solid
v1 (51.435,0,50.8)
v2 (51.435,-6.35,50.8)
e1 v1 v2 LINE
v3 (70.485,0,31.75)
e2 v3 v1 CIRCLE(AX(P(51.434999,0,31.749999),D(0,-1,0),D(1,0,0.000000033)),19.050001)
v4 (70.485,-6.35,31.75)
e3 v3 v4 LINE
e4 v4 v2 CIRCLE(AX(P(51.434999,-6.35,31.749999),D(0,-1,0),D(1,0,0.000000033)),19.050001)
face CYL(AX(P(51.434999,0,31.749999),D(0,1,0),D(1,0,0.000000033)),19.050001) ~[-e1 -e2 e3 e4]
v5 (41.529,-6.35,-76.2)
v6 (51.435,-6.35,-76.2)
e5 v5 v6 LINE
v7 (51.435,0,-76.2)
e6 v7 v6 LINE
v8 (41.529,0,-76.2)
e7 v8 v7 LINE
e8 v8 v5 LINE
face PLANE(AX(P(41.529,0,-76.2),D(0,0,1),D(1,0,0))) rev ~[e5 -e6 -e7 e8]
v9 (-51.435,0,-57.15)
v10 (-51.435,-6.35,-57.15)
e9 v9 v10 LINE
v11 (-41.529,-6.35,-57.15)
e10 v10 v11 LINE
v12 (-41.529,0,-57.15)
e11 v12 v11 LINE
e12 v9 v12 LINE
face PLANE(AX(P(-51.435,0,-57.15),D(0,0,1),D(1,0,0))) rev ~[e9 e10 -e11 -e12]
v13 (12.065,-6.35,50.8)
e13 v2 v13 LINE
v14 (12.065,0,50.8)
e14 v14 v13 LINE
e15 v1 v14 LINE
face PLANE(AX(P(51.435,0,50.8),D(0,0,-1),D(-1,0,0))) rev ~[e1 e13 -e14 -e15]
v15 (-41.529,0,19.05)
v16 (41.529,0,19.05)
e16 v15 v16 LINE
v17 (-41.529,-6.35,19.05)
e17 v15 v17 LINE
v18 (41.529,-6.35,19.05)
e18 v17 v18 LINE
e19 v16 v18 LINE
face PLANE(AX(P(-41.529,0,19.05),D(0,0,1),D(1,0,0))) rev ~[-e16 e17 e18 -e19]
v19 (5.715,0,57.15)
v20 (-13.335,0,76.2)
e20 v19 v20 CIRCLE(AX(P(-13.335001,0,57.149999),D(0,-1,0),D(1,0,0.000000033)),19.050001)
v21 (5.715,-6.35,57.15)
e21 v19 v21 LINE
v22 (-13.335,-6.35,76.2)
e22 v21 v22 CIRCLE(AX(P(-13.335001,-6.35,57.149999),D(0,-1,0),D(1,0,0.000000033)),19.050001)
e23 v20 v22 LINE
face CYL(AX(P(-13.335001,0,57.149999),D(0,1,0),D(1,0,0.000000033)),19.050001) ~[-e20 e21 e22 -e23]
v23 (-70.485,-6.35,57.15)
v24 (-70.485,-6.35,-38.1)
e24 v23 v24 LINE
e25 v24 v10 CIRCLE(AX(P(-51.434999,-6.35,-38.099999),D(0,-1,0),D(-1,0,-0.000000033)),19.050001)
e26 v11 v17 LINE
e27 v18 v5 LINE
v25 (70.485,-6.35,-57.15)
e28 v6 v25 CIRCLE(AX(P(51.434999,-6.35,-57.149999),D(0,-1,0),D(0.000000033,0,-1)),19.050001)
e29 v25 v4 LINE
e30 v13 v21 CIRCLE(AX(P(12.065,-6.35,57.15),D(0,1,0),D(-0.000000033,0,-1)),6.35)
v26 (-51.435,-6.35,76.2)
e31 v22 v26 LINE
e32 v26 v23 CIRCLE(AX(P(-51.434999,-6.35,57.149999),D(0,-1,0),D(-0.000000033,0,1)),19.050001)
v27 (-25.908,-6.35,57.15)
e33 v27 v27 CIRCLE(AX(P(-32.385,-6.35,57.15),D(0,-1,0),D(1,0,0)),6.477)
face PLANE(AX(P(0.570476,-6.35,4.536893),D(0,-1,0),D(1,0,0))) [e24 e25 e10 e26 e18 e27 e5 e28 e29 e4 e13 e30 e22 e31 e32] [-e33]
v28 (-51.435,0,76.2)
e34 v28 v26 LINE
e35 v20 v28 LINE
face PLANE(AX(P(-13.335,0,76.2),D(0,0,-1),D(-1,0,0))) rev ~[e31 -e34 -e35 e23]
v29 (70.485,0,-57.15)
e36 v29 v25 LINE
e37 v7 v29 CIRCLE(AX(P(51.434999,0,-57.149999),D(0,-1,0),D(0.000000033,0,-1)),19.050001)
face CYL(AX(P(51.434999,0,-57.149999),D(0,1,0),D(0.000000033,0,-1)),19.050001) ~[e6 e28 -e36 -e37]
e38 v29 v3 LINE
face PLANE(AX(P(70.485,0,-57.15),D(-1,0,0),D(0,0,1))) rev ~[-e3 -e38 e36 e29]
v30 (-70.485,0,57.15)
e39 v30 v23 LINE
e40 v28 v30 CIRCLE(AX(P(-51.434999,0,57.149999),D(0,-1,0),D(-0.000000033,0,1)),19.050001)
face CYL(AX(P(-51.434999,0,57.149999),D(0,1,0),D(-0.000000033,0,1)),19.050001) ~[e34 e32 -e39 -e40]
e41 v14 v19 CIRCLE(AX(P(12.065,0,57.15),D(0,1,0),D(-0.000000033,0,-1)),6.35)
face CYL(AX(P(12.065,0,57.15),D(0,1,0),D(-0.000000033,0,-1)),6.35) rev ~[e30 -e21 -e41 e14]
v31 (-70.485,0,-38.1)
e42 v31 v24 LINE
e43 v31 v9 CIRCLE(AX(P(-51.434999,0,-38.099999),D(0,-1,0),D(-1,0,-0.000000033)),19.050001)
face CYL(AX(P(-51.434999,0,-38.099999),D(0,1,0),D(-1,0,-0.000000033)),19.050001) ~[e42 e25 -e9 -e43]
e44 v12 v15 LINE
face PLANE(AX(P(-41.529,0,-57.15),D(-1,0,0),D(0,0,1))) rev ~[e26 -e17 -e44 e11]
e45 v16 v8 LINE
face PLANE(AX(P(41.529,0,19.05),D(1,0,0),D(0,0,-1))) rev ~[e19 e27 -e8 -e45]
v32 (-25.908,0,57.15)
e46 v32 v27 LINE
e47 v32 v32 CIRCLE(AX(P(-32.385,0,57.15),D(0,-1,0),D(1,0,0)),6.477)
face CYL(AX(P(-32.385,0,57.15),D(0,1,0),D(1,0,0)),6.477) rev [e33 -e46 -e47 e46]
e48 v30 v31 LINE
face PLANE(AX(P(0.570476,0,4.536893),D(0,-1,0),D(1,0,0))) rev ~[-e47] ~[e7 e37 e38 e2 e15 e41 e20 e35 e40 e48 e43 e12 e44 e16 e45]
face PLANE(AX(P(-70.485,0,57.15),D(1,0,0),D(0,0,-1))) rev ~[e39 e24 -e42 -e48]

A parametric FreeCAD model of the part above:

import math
import FreeCAD as App
import Part
import Sketcher
Q = App.Units.Quantity

doc = App.newDocument("Part")
body = doc.addObject("PartDesign::Body", "Body")

# Sketch on XZ plane
sketch1 = body.newObject("Sketcher::SketchObject", "Sketch")
sketch1.AttachmentSupport = (doc.getObject("XZ_Plane"), [""])
sketch1.MapMode = "FlatFace"
sketch1.addGeometry([
    Part.LineSegment(App.Vector(42, -76, 0), App.Vector(51, -76, 0)),  # 0
    Part.ArcOfCircle(Part.Circle(App.Vector(51, -57, 0), App.Vector(0, 0, 1), 19), math.radians(-90), math.radians(0)),  # 1
    Part.LineSegment(App.Vector(70, -57, 0), App.Vector(70, 32, 0)),  # 2
    Part.ArcOfCircle(Part.Circle(App.Vector(51, 32, 0), App.Vector(0, 0, 1), 19), math.radians(0), math.radians(90)),  # 3
    Part.LineSegment(App.Vector(51, 51, 0), App.Vector(12, 51, 0)),  # 4
    Part.ArcOfCircle(Part.Circle(App.Vector(12, 57, 0), App.Vector(0, 0, 1), 6), math.radians(-180), math.radians(-90)),  # 5
    Part.ArcOfCircle(Part.Circle(App.Vector(-13, 57, 0), App.Vector(0, 0, 1), 19), math.radians(0), math.radians(90)),  # 6
    Part.LineSegment(App.Vector(-13, 76, 0), App.Vector(-51, 76, 0)),  # 7
    Part.ArcOfCircle(Part.Circle(App.Vector(-51, 57, 0), App.Vector(0, 0, 1), 19), math.radians(90), math.radians(180)),  # 8
    Part.LineSegment(App.Vector(-70, 57, 0), App.Vector(-70, -38, 0)),  # 9
    Part.ArcOfCircle(Part.Circle(App.Vector(-51, -38, 0), App.Vector(0, 0, 1), 19), math.radians(-180), math.radians(-90)),  # 10
    Part.LineSegment(App.Vector(-51, -57, 0), App.Vector(-42, -57, 0)),  # 11
    Part.LineSegment(App.Vector(-42, -57, 0), App.Vector(-42, 19, 0)),  # 12
    Part.LineSegment(App.Vector(-42, 19, 0), App.Vector(42, 19, 0)),  # 13
    Part.LineSegment(App.Vector(42, 19, 0), App.Vector(42, -76, 0)),  # 14
    Part.Circle(App.Vector(-32, 57, 0), App.Vector(0, 0, 1), 6),  # 15
], False)
sketch1.addConstraint([
    Sketcher.Constraint("Tangent", 0, 2, 1, 1),
    Sketcher.Constraint("Tangent", 1, 2, 2, 1),
    Sketcher.Constraint("Tangent", 2, 2, 3, 1),
    Sketcher.Constraint("Tangent", 3, 2, 4, 1),
    Sketcher.Constraint("Tangent", 4, 2, 5, 2),
    Sketcher.Constraint("Tangent", 5, 1, 6, 1),
    Sketcher.Constraint("Tangent", 6, 2, 7, 1),
    Sketcher.Constraint("Tangent", 7, 2, 8, 1),
    Sketcher.Constraint("Tangent", 8, 2, 9, 1),
    Sketcher.Constraint("Tangent", 9, 2, 10, 1),
    Sketcher.Constraint("Tangent", 10, 2, 11, 1),
    Sketcher.Constraint("Coincident", 11, 2, 12, 1),
    Sketcher.Constraint("Coincident", 12, 2, 13, 1),
    Sketcher.Constraint("Coincident", 13, 2, 14, 1),
    Sketcher.Constraint("Coincident", 14, 2, 0, 1),
    Sketcher.Constraint("Horizontal", 0),
    Sketcher.Constraint("Vertical", 2),
    Sketcher.Constraint("Horizontal", 4),
    Sketcher.Constraint("Horizontal", 7),
    Sketcher.Constraint("Vertical", 9),
    Sketcher.Constraint("Horizontal", 11),
    Sketcher.Constraint("Vertical", 12),
    Sketcher.Constraint("Horizontal", 13),
    Sketcher.Constraint("Vertical", 14),
    Sketcher.Constraint("Equal", 1, 3),
    Sketcher.Constraint("Equal", 3, 6),
    Sketcher.Constraint("Equal", 6, 8),
    Sketcher.Constraint("Equal", 8, 10),
    Sketcher.Constraint("Symmetric", 1, 3, 8, 3, -1, 1),
    Sketcher.Constraint("Horizontal", 5, 3, 6, 3),
    Sketcher.Constraint("Horizontal", 8, 3, 15, 3),
    Sketcher.Constraint("Horizontal", 1, 2, 10, 2),
    Sketcher.Constraint("Equal", 0, 11),
    Sketcher.Constraint("Equal", 9, 14),
    Sketcher.Constraint("Diameter", 15, Q("0.51 in")),
    Sketcher.Constraint("DistanceY", 12, 1, 12, 2, Q("3 in")),
    Sketcher.Constraint("Radius", 1, Q("0.75 in")),
    Sketcher.Constraint("Radius", 5, Q("0.25 in")),
    Sketcher.Constraint("DistanceX", 7, 2, 7, 1, Q("1.5 in")),
    Sketcher.Constraint("DistanceX", 0, 1, 0, 2, Q("0.39 in")),
    Sketcher.Constraint("DistanceX", 4, 2, 4, 1, Q("1.55 in")),
    Sketcher.Constraint("DistanceX", 15, 3, 3, 3, Q("3.3 in")),
])
pad1 = body.newObject("PartDesign::Pad", "Pad")
pad1.Profile = sketch1
pad1.Length = Q("0.25 in")

doc.recompute()
